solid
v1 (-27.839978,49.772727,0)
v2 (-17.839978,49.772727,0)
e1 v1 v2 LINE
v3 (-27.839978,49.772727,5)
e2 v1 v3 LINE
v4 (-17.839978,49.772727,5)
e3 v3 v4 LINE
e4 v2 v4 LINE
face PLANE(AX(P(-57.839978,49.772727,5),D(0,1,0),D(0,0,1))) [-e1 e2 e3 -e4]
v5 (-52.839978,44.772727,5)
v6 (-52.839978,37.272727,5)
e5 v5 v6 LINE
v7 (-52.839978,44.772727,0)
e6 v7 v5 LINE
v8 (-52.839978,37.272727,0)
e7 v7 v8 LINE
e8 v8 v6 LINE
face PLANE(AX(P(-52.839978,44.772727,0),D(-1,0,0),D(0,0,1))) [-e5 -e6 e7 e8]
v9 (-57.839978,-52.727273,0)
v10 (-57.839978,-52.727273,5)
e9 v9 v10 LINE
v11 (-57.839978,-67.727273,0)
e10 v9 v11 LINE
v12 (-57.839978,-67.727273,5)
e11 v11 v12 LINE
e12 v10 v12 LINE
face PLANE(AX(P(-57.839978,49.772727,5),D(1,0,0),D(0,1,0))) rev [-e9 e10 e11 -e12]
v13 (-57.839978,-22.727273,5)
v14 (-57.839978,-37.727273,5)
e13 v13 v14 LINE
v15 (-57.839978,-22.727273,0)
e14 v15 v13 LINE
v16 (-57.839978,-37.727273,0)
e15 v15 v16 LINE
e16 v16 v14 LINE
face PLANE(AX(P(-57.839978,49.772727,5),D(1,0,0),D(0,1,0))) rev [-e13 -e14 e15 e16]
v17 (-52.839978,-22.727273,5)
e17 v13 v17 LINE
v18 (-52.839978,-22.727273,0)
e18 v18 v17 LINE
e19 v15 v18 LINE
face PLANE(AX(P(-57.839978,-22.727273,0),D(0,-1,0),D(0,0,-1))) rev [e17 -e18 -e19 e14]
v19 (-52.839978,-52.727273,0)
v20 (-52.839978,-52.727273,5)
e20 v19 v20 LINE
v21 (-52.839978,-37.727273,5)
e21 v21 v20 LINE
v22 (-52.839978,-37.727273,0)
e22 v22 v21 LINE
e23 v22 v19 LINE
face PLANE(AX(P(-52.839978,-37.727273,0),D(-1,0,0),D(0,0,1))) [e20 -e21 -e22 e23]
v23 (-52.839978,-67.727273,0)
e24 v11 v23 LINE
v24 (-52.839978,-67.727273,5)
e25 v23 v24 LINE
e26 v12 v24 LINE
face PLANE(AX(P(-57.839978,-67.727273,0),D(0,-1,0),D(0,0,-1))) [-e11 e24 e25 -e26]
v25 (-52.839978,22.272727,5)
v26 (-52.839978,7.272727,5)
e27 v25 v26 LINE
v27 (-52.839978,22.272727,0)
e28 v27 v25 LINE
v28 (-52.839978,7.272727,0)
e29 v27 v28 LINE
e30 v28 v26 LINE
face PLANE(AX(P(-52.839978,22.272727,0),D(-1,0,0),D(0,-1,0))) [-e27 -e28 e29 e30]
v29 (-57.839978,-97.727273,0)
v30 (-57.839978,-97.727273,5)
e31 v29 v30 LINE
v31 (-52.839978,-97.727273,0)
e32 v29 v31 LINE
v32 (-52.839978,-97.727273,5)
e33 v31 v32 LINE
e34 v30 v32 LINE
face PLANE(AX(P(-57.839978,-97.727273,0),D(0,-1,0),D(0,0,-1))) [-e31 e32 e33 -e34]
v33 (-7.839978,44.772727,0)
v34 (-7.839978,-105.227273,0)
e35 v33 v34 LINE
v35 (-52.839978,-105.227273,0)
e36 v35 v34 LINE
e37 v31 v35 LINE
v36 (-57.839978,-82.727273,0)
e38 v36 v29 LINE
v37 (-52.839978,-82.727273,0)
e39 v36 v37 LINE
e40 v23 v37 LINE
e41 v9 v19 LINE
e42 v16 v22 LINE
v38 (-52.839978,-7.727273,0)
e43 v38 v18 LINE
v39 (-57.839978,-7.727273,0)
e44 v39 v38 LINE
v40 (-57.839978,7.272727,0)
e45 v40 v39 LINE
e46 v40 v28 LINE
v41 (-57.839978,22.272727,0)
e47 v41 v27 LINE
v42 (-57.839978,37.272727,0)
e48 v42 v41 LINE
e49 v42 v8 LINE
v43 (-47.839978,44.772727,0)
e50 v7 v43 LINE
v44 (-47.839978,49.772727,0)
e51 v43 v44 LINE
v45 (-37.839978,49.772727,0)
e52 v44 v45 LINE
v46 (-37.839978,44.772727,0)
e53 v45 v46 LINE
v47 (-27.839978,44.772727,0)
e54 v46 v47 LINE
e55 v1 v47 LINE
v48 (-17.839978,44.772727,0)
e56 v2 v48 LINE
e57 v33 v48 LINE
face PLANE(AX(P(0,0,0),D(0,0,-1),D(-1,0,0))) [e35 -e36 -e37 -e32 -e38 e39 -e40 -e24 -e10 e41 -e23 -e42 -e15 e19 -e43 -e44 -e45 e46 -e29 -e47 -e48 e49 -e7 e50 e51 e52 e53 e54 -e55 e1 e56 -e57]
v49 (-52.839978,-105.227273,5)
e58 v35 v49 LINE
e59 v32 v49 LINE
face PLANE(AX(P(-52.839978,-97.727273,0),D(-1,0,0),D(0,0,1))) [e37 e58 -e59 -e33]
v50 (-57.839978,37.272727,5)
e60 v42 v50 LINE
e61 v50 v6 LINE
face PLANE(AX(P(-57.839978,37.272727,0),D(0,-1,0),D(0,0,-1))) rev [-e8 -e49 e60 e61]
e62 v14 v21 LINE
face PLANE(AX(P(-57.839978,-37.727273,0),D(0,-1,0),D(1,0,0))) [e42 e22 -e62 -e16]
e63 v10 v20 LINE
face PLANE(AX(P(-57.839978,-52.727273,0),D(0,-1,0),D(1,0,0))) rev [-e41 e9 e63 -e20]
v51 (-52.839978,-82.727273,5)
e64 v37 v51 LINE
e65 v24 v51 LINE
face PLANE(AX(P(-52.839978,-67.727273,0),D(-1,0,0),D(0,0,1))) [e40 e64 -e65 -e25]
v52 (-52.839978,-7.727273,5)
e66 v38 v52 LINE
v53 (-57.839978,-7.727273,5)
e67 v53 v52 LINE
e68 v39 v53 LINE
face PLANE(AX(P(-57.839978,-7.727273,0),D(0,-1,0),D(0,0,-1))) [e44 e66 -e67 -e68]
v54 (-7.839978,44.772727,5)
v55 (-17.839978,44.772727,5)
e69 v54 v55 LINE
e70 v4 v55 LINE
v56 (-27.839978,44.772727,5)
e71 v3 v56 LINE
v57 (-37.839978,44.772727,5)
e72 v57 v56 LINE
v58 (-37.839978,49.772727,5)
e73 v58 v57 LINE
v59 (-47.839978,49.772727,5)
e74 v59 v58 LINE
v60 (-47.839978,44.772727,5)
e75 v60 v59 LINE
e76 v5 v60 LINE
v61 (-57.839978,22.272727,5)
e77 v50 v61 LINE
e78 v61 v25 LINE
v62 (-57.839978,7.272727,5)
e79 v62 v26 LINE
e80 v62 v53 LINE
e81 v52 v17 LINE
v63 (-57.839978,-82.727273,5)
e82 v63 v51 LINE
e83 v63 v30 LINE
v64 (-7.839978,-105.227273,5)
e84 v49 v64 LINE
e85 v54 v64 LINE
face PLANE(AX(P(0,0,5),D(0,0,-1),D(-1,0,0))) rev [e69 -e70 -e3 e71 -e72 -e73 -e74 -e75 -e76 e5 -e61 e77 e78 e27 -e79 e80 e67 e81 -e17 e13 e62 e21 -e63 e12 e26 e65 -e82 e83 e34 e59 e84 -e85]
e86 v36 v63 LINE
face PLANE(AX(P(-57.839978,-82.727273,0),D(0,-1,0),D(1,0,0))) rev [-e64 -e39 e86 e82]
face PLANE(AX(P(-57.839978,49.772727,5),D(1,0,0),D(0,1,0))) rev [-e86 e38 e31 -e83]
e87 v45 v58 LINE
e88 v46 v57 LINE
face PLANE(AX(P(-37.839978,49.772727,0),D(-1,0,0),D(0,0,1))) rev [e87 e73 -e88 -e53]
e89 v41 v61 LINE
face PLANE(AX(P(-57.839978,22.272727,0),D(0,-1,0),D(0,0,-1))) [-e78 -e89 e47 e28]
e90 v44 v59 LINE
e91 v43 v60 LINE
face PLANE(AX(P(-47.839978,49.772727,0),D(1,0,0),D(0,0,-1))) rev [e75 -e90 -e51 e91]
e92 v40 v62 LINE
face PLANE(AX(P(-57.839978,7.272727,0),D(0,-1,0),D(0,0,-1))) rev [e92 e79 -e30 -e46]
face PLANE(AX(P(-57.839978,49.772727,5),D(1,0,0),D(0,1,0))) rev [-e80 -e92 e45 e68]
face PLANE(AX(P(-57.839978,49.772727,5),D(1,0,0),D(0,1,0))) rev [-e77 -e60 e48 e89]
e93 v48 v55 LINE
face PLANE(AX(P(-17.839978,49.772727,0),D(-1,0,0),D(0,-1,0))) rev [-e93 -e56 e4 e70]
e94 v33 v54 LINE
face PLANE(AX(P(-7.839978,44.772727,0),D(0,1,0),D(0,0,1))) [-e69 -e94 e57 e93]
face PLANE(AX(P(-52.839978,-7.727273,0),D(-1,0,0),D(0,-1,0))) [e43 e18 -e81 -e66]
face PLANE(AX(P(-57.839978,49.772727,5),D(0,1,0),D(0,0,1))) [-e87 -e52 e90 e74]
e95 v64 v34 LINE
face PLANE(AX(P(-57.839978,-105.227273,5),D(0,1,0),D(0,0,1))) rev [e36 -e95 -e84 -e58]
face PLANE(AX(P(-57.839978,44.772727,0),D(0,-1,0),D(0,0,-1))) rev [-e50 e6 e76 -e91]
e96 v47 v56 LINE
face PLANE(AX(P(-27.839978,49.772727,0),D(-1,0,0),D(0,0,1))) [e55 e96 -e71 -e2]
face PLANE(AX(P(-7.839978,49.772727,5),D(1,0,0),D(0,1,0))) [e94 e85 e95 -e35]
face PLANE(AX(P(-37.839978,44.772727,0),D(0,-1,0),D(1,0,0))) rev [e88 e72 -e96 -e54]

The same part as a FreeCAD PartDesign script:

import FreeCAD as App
import Part
import Sketcher

V = App.Vector
Q = App.Units.Quantity


def add_polygon(sketch, points):
    """Adds a closed chain of lines whose ends are joined by coincident constraints."""
    first, n = sketch.GeometryCount, len(points)
    for a, b in zip(points, points[1:] + points[:1]):
        sketch.addGeometry(Part.LineSegment(App.Vector(*a, 0), App.Vector(*b, 0)), False)
    for i in range(n):
        sketch.addConstraint(Sketcher.Constraint("Coincident", first + i, 2, first + (i + 1) % n, 1))

doc = App.newDocument("Part")
body = doc.addObject("PartDesign::Body", "Body")

# Sketch on XY plane
sketch1 = body.newObject("Sketcher::SketchObject", "Sketch")
sketch1.AttachmentSupport = (doc.getObject("XY_Plane"), [""])
sketch1.MapMode = "FlatFace"
add_polygon(sketch1, [(-58, 50), (-58, -105), (-8, -105), (-8, 50)])  # lines 0-3
sketch1.addConstraint([
    Sketcher.Constraint("Vertical", 0),
    Sketcher.Constraint("Horizontal", 1),
    Sketcher.Constraint("Vertical", 2),
    Sketcher.Constraint("Horizontal", 3),
    Sketcher.Constraint("DistanceX", 1, 1, 1, 2, Q("50 mm")),
    Sketcher.Constraint("DistanceY", 0, 2, 0, 1, Q("155 mm")),
    Sketcher.Constraint("DistanceX", 0, 2, -1, 1, Q("57.839978 mm")),
    Sketcher.Constraint("DistanceY", 0, 2, -1, 1, Q("105.227273 mm")),
])
pad1 = body.newObject("PartDesign::Pad", "Pad")
pad1.Profile = sketch1
pad1.Length = 5

# Sketch on XY plane
sketch2 = body.newObject("Sketcher::SketchObject", "Sketch001")
sketch2.AttachmentSupport = (doc.getObject("XY_Plane"), [""])
sketch2.MapMode = "FlatFace"
sketch2.AttachmentOffset = App.Placement(V(0, 0, 5), App.Rotation())
add_polygon(sketch2, [(-58, 22), (-58, 7), (-53, 7), (-53, 22)])  # lines 0-3
add_polygon(sketch2, [(-58, -8), (-58, -23), (-53, -23), (-53, -8)])  # lines 4-7
add_polygon(sketch2, [(-58, -38), (-58, -53), (-53, -53), (-53, -38)])  # lines 8-11
add_polygon(sketch2, [(-58, -68), (-58, -83), (-53, -83), (-53, -68)])  # lines 12-15
add_polygon(sketch2, [(-58, -98), (-58, -105), (-53, -105), (-53, -98)])  # lines 16-19
add_polygon(sketch2, [(-38, 50), (-38, 45), (-28, 45), (-28, 50)])  # lines 20-23
add_polygon(sketch2, [(-18, 50), (-18, 45), (-8, 45), (-8, 50)])  # lines 24-27
sketch2.addConstraint([
    Sketcher.Constraint("Vertical", 0),
    Sketcher.Constraint("Horizontal", 1),
    Sketcher.Constraint("Vertical", 2),
    Sketcher.Constraint("Horizontal", 3),
    Sketcher.Constraint("Vertical", 4),
    Sketcher.Constraint("Horizontal", 5),
    Sketcher.Constraint("Vertical", 6),
    Sketcher.Constraint("Horizontal", 7),
    Sketcher.Constraint("Vertical", 8),
    Sketcher.Constraint("Horizontal", 9),
    Sketcher.Constraint("Vertical", 10),
    Sketcher.Constraint("Horizontal", 11),
    Sketcher.Constraint("Vertical", 12),
    Sketcher.Constraint("Horizontal", 13),
    Sketcher.Constraint("Vertical", 14),
    Sketcher.Constraint("Horizontal", 15),
    Sketcher.Constraint("Vertical", 16),
    Sketcher.Constraint("Horizontal", 17),
    Sketcher.Constraint("Vertical", 18),
    Sketcher.Constraint("Horizontal", 19),
    Sketcher.Constraint("Vertical", 20),
    Sketcher.Constraint("Horizontal", 21),
    Sketcher.Constraint("Vertical", 22),
    Sketcher.Constraint("Horizontal", 23),
    Sketcher.Constraint("Vertical", 24),
    Sketcher.Constraint("Horizontal", 25),
    Sketcher.Constraint("Vertical", 26),
    Sketcher.Constraint("Horizontal", 27),
    Sketcher.Constraint("Horizontal", 21, 2, 24, 2),
    Sketcher.Constraint("Horizontal", 23, 2, 26, 2),
    Sketcher.Constraint("Vertical", 3, 2, 4, 2),
    Sketcher.Constraint("Vertical", 2, 2, 5, 2),
    Sketcher.Constraint("Vertical", 7, 2, 8, 2),
    Sketcher.Constraint("Vertical", 6, 2, 9, 2),
    Sketcher.Constraint("Vertical", 11, 2, 12, 2),
    Sketcher.Constraint("Vertical", 10, 2, 13, 2),
    Sketcher.Constraint("Vertical", 15, 2, 16, 2),
    Sketcher.Constraint("Vertical", 14, 2, 17, 2),
    Sketcher.Constraint("Equal", 23, 25),
    Sketcher.Constraint("Equal", 2, 4),
    Sketcher.Constraint("Equal", 6, 8),
    Sketcher.Constraint("Equal", 10, 12),
    Sketcher.Constraint("Equal", 19, 20),
    Sketcher.Constraint("DistanceX", 1, 1, 1, 2, Q("5 mm")),
    Sketcher.Constraint("DistanceX", 21, 1, 21, 2, Q("10 mm")),
    Sketcher.Constraint("DistanceY", 0, 2, 0, 1, Q("15 mm")),
    Sketcher.Constraint("DistanceY", 16, 2, 16, 1, Q("7.5 mm")),
    Sketcher.Constraint("DistanceY", 4, 2, 0, 2, Q("30 mm")),
    Sketcher.Constraint("DistanceY", 8, 2, 4, 2, Q("30 mm")),
    Sketcher.Constraint("DistanceY", 12, 2, 8, 2, Q("30 mm")),
    Sketcher.Constraint("DistanceY", 18, 2, 13, 2, Q("15 mm")),
    Sketcher.Constraint("DistanceX", 2, 2, 20, 2, Q("15 mm")),
    Sketcher.Constraint("DistanceX", 21, 2, 24, 2, Q("10 mm")),
    Sketcher.Constraint("DistanceY", 2, 2, 20, 2, Q("22.5 mm")),
    Sketcher.Constraint("DistanceX", 0, 2, -1, 1, Q("57.839978 mm")),
    Sketcher.Constraint("DistanceY", -1, 1, 0, 2, Q("7.272727 mm")),
])
pocket1 = body.newObject("PartDesign::Pocket", "Pocket")
pocket1.Profile = sketch2
pocket1.Length = 5

# Sketch on XY plane
sketch3 = body.newObject("Sketcher::SketchObject", "Sketch002")
sketch3.AttachmentSupport = (doc.getObject("XY_Plane"), [""])
sketch3.MapMode = "FlatFace"
sketch3.AttachmentOffset = App.Placement(V(0, 0, 5), App.Rotation())
add_polygon(sketch3, [(-58, 50), (-58, 45), (-48, 45), (-48, 50)])  # lines 0-3
sketch3.addConstraint([
    Sketcher.Constraint("Vertical", 0),
    Sketcher.Constraint("Horizontal", 1),
    Sketcher.Constraint("Vertical", 2),
    Sketcher.Constraint("Horizontal", 3),
    Sketcher.Constraint("DistanceX", 1, 1, 1, 2, Q("10 mm")),
    Sketcher.Constraint("DistanceY", 0, 2, 0, 1, Q("5 mm")),
    Sketcher.Constraint("DistanceX", 0, 2, -1, 1, Q("57.839978 mm")),
    Sketcher.Constraint("DistanceY", -1, 1, 0, 2, Q("44.772727 mm")),
])
pocket2 = body.newObject("PartDesign::Pocket", "Pocket001")
pocket2.Profile = sketch3
pocket2.Length = 5

# Sketch on XY plane
sketch4 = body.newObject("Sketcher::SketchObject", "Sketch003")
sketch4.AttachmentSupport = (doc.getObject("XY_Plane"), [""])
sketch4.MapMode = "FlatFace"
sketch4.AttachmentOffset = App.Placement(V(0, 0, 5), App.Rotation())
add_polygon(sketch4, [(-58, 45), (-58, 37), (-53, 37), (-53, 45)])  # lines 0-3
sketch4.addConstraint([
    Sketcher.Constraint("Vertical", 0),
    Sketcher.Constraint("Horizontal", 1),
    Sketcher.Constraint("Vertical", 2),
    Sketcher.Constraint("Horizontal", 3),
    Sketcher.Constraint("DistanceX", 1, 1, 1, 2, Q("5 mm")),
    Sketcher.Constraint("DistanceY", 0, 2, 0, 1, Q("7.5 mm")),
    Sketcher.Constraint("DistanceX", 0, 2, -1, 1, Q("57.839978 mm")),
    Sketcher.Constraint("DistanceY", -1, 1, 0, 2, Q("37.272727 mm")),
])
pocket3 = body.newObject("PartDesign::Pocket", "Pocket002")
pocket3.Profile = sketch4
pocket3.Length = 5

doc.recompute()
